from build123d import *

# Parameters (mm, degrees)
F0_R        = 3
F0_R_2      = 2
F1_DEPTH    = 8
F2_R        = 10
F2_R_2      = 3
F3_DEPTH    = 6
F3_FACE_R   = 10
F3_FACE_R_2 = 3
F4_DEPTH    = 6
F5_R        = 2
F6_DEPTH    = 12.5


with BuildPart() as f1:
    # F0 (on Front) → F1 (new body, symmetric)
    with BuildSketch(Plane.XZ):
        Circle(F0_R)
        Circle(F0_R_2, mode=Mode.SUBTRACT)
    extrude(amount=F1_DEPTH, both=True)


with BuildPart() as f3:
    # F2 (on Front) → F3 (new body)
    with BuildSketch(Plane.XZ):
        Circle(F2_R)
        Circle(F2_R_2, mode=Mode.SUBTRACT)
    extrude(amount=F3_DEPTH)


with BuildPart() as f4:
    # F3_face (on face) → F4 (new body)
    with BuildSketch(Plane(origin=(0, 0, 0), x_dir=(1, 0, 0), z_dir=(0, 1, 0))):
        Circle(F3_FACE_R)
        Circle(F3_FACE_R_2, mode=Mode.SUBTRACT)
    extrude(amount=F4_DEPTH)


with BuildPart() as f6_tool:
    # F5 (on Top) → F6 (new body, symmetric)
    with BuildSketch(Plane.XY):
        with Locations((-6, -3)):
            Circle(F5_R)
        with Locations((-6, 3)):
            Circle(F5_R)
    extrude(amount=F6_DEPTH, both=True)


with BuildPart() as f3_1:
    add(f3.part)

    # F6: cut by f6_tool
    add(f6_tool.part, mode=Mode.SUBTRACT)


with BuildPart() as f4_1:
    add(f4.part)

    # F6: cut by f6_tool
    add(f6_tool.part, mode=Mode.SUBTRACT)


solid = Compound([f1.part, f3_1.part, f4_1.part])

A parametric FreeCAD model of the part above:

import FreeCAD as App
import Part
import Sketcher

V = App.Vector
Q = App.Units.Quantity

doc = App.newDocument("Part")
body = doc.addObject("PartDesign::Body", "Body")

# Sketch on XZ plane
sketch1 = body.newObject("Sketcher::SketchObject", "Sketch")
sketch1.AttachmentSupport = (doc.getObject("XZ_Plane"), [""])
sketch1.MapMode = "FlatFace"
sketch1.addGeometry(Part.Circle(V(0, 0, 0), V(0, 0, 1), 3), False)
sketch1.addGeometry(Part.Circle(V(0, 0, 0), V(0, 0, 1), 2), False)
sketch1.addConstraint(Sketcher.Constraint("Coincident", 0, 3, -1, 1))
sketch1.addConstraint(Sketcher.Constraint("Coincident", 1, 3, -1, 1))
sketch1.addConstraint(Sketcher.Constraint("Diameter", 0, Q("6 mm")))
sketch1.addConstraint(Sketcher.Constraint("Diameter", 1, Q("4 mm")))
pad1 = body.newObject("PartDesign::Pad", "Pad")
pad1.Profile = sketch1
pad1.Length = 16
pad1.Midplane = True
body2 = doc.addObject("PartDesign::Body", "Body001")

# Sketch on XZ plane
sketch2 = body2.newObject("Sketcher::SketchObject", "Sketch001")
sketch2.AttachmentSupport = (doc.getObject("XZ_Plane001"), [""])
sketch2.MapMode = "FlatFace"
sketch2.addGeometry(Part.Circle(V(0, 0, 0), V(0, 0, 1), 10), False)
sketch2.addGeometry(Part.Circle(V(0, 0, 0), V(0, 0, 1), 3), False)
sketch2.addConstraint(Sketcher.Constraint("Coincident", 0, 3, -1, 1))
sketch2.addConstraint(Sketcher.Constraint("Coincident", 1, 3, -1, 1))
sketch2.addConstraint(Sketcher.Constraint("Diameter", 0, Q("20 mm")))
sketch2.addConstraint(Sketcher.Constraint("Diameter", 1, Q("6 mm")))
pad2 = body2.newObject("PartDesign::Pad", "Pad001")
pad2.Profile = sketch2
pad2.Length = 6
body3 = doc.addObject("PartDesign::Body", "Body002")

# Sketch on XZ plane
sketch3 = body3.newObject("Sketcher::SketchObject", "Sketch002")
sketch3.AttachmentSupport = (doc.getObject("XZ_Plane002"), [""])
sketch3.MapMode = "FlatFace"
sketch3.addGeometry(Part.Circle(V(0, 0, 0), V(0, 0, 1), 10), False)
sketch3.addGeometry(Part.Circle(V(0, 0, 0), V(0, 0, 1), 3), False)
sketch3.addConstraint(Sketcher.Constraint("Coincident", 0, 3, -1, 1))
sketch3.addConstraint(Sketcher.Constraint("Coincident", 1, 3, -1, 1))
sketch3.addConstraint(Sketcher.Constraint("Diameter", 0, Q("20 mm")))
sketch3.addConstraint(Sketcher.Constraint("Diameter", 1, Q("6 mm")))
pad3 = body3.newObject("PartDesign::Pad", "Pad002")
pad3.Profile = sketch3
pad3.Length = 6
pad3.Reversed = True
body4 = doc.addObject("PartDesign::Body", "Body003")
body4.AllowCompound = True

# Sketch on XY plane
sketch4 = body4.newObject("Sketcher::SketchObject", "Sketch003")
sketch4.AttachmentSupport = (doc.getObject("XY_Plane003"), [""])
sketch4.MapMode = "FlatFace"
sketch4.addGeometry(Part.Circle(V(-6, -3, 0), V(0, 0, 1), 2), False)
sketch4.addGeometry(Part.Circle(V(-6, 3, 0), V(0, 0, 1), 2), False)
sketch4.addConstraint(Sketcher.Constraint("Equal", 0, 1))
sketch4.addConstraint(Sketcher.Constraint("Symmetric", 0, 3, 1, 3, -1))
sketch4.addConstraint(Sketcher.Constraint("Diameter", 0, Q("4 mm")))
sketch4.addConstraint(Sketcher.Constraint("DistanceX", 0, 3, -1, 1, Q("6 mm")))
sketch4.addConstraint(Sketcher.Constraint("DistanceY", 0, 3, -1, 1, Q("3 mm")))
pad4 = body4.newObject("PartDesign::Pad", "Pad003")
pad4.Profile = sketch4
pad4.Length = 25
pad4.Midplane = True
doc.recompute()

body5 = doc.addObject("PartDesign::Body", "Body004")
body5.BaseFeature = body4
boolean = body2.newObject("PartDesign::Boolean", "Boolean")
boolean.Type = "Cut"
boolean.addObjects([body5])
doc.recompute()

boolean2 = body3.newObject("PartDesign::Boolean", "Boolean001")
boolean2.Type = "Cut"
boolean2.addObjects([body4])

doc.recompute()
